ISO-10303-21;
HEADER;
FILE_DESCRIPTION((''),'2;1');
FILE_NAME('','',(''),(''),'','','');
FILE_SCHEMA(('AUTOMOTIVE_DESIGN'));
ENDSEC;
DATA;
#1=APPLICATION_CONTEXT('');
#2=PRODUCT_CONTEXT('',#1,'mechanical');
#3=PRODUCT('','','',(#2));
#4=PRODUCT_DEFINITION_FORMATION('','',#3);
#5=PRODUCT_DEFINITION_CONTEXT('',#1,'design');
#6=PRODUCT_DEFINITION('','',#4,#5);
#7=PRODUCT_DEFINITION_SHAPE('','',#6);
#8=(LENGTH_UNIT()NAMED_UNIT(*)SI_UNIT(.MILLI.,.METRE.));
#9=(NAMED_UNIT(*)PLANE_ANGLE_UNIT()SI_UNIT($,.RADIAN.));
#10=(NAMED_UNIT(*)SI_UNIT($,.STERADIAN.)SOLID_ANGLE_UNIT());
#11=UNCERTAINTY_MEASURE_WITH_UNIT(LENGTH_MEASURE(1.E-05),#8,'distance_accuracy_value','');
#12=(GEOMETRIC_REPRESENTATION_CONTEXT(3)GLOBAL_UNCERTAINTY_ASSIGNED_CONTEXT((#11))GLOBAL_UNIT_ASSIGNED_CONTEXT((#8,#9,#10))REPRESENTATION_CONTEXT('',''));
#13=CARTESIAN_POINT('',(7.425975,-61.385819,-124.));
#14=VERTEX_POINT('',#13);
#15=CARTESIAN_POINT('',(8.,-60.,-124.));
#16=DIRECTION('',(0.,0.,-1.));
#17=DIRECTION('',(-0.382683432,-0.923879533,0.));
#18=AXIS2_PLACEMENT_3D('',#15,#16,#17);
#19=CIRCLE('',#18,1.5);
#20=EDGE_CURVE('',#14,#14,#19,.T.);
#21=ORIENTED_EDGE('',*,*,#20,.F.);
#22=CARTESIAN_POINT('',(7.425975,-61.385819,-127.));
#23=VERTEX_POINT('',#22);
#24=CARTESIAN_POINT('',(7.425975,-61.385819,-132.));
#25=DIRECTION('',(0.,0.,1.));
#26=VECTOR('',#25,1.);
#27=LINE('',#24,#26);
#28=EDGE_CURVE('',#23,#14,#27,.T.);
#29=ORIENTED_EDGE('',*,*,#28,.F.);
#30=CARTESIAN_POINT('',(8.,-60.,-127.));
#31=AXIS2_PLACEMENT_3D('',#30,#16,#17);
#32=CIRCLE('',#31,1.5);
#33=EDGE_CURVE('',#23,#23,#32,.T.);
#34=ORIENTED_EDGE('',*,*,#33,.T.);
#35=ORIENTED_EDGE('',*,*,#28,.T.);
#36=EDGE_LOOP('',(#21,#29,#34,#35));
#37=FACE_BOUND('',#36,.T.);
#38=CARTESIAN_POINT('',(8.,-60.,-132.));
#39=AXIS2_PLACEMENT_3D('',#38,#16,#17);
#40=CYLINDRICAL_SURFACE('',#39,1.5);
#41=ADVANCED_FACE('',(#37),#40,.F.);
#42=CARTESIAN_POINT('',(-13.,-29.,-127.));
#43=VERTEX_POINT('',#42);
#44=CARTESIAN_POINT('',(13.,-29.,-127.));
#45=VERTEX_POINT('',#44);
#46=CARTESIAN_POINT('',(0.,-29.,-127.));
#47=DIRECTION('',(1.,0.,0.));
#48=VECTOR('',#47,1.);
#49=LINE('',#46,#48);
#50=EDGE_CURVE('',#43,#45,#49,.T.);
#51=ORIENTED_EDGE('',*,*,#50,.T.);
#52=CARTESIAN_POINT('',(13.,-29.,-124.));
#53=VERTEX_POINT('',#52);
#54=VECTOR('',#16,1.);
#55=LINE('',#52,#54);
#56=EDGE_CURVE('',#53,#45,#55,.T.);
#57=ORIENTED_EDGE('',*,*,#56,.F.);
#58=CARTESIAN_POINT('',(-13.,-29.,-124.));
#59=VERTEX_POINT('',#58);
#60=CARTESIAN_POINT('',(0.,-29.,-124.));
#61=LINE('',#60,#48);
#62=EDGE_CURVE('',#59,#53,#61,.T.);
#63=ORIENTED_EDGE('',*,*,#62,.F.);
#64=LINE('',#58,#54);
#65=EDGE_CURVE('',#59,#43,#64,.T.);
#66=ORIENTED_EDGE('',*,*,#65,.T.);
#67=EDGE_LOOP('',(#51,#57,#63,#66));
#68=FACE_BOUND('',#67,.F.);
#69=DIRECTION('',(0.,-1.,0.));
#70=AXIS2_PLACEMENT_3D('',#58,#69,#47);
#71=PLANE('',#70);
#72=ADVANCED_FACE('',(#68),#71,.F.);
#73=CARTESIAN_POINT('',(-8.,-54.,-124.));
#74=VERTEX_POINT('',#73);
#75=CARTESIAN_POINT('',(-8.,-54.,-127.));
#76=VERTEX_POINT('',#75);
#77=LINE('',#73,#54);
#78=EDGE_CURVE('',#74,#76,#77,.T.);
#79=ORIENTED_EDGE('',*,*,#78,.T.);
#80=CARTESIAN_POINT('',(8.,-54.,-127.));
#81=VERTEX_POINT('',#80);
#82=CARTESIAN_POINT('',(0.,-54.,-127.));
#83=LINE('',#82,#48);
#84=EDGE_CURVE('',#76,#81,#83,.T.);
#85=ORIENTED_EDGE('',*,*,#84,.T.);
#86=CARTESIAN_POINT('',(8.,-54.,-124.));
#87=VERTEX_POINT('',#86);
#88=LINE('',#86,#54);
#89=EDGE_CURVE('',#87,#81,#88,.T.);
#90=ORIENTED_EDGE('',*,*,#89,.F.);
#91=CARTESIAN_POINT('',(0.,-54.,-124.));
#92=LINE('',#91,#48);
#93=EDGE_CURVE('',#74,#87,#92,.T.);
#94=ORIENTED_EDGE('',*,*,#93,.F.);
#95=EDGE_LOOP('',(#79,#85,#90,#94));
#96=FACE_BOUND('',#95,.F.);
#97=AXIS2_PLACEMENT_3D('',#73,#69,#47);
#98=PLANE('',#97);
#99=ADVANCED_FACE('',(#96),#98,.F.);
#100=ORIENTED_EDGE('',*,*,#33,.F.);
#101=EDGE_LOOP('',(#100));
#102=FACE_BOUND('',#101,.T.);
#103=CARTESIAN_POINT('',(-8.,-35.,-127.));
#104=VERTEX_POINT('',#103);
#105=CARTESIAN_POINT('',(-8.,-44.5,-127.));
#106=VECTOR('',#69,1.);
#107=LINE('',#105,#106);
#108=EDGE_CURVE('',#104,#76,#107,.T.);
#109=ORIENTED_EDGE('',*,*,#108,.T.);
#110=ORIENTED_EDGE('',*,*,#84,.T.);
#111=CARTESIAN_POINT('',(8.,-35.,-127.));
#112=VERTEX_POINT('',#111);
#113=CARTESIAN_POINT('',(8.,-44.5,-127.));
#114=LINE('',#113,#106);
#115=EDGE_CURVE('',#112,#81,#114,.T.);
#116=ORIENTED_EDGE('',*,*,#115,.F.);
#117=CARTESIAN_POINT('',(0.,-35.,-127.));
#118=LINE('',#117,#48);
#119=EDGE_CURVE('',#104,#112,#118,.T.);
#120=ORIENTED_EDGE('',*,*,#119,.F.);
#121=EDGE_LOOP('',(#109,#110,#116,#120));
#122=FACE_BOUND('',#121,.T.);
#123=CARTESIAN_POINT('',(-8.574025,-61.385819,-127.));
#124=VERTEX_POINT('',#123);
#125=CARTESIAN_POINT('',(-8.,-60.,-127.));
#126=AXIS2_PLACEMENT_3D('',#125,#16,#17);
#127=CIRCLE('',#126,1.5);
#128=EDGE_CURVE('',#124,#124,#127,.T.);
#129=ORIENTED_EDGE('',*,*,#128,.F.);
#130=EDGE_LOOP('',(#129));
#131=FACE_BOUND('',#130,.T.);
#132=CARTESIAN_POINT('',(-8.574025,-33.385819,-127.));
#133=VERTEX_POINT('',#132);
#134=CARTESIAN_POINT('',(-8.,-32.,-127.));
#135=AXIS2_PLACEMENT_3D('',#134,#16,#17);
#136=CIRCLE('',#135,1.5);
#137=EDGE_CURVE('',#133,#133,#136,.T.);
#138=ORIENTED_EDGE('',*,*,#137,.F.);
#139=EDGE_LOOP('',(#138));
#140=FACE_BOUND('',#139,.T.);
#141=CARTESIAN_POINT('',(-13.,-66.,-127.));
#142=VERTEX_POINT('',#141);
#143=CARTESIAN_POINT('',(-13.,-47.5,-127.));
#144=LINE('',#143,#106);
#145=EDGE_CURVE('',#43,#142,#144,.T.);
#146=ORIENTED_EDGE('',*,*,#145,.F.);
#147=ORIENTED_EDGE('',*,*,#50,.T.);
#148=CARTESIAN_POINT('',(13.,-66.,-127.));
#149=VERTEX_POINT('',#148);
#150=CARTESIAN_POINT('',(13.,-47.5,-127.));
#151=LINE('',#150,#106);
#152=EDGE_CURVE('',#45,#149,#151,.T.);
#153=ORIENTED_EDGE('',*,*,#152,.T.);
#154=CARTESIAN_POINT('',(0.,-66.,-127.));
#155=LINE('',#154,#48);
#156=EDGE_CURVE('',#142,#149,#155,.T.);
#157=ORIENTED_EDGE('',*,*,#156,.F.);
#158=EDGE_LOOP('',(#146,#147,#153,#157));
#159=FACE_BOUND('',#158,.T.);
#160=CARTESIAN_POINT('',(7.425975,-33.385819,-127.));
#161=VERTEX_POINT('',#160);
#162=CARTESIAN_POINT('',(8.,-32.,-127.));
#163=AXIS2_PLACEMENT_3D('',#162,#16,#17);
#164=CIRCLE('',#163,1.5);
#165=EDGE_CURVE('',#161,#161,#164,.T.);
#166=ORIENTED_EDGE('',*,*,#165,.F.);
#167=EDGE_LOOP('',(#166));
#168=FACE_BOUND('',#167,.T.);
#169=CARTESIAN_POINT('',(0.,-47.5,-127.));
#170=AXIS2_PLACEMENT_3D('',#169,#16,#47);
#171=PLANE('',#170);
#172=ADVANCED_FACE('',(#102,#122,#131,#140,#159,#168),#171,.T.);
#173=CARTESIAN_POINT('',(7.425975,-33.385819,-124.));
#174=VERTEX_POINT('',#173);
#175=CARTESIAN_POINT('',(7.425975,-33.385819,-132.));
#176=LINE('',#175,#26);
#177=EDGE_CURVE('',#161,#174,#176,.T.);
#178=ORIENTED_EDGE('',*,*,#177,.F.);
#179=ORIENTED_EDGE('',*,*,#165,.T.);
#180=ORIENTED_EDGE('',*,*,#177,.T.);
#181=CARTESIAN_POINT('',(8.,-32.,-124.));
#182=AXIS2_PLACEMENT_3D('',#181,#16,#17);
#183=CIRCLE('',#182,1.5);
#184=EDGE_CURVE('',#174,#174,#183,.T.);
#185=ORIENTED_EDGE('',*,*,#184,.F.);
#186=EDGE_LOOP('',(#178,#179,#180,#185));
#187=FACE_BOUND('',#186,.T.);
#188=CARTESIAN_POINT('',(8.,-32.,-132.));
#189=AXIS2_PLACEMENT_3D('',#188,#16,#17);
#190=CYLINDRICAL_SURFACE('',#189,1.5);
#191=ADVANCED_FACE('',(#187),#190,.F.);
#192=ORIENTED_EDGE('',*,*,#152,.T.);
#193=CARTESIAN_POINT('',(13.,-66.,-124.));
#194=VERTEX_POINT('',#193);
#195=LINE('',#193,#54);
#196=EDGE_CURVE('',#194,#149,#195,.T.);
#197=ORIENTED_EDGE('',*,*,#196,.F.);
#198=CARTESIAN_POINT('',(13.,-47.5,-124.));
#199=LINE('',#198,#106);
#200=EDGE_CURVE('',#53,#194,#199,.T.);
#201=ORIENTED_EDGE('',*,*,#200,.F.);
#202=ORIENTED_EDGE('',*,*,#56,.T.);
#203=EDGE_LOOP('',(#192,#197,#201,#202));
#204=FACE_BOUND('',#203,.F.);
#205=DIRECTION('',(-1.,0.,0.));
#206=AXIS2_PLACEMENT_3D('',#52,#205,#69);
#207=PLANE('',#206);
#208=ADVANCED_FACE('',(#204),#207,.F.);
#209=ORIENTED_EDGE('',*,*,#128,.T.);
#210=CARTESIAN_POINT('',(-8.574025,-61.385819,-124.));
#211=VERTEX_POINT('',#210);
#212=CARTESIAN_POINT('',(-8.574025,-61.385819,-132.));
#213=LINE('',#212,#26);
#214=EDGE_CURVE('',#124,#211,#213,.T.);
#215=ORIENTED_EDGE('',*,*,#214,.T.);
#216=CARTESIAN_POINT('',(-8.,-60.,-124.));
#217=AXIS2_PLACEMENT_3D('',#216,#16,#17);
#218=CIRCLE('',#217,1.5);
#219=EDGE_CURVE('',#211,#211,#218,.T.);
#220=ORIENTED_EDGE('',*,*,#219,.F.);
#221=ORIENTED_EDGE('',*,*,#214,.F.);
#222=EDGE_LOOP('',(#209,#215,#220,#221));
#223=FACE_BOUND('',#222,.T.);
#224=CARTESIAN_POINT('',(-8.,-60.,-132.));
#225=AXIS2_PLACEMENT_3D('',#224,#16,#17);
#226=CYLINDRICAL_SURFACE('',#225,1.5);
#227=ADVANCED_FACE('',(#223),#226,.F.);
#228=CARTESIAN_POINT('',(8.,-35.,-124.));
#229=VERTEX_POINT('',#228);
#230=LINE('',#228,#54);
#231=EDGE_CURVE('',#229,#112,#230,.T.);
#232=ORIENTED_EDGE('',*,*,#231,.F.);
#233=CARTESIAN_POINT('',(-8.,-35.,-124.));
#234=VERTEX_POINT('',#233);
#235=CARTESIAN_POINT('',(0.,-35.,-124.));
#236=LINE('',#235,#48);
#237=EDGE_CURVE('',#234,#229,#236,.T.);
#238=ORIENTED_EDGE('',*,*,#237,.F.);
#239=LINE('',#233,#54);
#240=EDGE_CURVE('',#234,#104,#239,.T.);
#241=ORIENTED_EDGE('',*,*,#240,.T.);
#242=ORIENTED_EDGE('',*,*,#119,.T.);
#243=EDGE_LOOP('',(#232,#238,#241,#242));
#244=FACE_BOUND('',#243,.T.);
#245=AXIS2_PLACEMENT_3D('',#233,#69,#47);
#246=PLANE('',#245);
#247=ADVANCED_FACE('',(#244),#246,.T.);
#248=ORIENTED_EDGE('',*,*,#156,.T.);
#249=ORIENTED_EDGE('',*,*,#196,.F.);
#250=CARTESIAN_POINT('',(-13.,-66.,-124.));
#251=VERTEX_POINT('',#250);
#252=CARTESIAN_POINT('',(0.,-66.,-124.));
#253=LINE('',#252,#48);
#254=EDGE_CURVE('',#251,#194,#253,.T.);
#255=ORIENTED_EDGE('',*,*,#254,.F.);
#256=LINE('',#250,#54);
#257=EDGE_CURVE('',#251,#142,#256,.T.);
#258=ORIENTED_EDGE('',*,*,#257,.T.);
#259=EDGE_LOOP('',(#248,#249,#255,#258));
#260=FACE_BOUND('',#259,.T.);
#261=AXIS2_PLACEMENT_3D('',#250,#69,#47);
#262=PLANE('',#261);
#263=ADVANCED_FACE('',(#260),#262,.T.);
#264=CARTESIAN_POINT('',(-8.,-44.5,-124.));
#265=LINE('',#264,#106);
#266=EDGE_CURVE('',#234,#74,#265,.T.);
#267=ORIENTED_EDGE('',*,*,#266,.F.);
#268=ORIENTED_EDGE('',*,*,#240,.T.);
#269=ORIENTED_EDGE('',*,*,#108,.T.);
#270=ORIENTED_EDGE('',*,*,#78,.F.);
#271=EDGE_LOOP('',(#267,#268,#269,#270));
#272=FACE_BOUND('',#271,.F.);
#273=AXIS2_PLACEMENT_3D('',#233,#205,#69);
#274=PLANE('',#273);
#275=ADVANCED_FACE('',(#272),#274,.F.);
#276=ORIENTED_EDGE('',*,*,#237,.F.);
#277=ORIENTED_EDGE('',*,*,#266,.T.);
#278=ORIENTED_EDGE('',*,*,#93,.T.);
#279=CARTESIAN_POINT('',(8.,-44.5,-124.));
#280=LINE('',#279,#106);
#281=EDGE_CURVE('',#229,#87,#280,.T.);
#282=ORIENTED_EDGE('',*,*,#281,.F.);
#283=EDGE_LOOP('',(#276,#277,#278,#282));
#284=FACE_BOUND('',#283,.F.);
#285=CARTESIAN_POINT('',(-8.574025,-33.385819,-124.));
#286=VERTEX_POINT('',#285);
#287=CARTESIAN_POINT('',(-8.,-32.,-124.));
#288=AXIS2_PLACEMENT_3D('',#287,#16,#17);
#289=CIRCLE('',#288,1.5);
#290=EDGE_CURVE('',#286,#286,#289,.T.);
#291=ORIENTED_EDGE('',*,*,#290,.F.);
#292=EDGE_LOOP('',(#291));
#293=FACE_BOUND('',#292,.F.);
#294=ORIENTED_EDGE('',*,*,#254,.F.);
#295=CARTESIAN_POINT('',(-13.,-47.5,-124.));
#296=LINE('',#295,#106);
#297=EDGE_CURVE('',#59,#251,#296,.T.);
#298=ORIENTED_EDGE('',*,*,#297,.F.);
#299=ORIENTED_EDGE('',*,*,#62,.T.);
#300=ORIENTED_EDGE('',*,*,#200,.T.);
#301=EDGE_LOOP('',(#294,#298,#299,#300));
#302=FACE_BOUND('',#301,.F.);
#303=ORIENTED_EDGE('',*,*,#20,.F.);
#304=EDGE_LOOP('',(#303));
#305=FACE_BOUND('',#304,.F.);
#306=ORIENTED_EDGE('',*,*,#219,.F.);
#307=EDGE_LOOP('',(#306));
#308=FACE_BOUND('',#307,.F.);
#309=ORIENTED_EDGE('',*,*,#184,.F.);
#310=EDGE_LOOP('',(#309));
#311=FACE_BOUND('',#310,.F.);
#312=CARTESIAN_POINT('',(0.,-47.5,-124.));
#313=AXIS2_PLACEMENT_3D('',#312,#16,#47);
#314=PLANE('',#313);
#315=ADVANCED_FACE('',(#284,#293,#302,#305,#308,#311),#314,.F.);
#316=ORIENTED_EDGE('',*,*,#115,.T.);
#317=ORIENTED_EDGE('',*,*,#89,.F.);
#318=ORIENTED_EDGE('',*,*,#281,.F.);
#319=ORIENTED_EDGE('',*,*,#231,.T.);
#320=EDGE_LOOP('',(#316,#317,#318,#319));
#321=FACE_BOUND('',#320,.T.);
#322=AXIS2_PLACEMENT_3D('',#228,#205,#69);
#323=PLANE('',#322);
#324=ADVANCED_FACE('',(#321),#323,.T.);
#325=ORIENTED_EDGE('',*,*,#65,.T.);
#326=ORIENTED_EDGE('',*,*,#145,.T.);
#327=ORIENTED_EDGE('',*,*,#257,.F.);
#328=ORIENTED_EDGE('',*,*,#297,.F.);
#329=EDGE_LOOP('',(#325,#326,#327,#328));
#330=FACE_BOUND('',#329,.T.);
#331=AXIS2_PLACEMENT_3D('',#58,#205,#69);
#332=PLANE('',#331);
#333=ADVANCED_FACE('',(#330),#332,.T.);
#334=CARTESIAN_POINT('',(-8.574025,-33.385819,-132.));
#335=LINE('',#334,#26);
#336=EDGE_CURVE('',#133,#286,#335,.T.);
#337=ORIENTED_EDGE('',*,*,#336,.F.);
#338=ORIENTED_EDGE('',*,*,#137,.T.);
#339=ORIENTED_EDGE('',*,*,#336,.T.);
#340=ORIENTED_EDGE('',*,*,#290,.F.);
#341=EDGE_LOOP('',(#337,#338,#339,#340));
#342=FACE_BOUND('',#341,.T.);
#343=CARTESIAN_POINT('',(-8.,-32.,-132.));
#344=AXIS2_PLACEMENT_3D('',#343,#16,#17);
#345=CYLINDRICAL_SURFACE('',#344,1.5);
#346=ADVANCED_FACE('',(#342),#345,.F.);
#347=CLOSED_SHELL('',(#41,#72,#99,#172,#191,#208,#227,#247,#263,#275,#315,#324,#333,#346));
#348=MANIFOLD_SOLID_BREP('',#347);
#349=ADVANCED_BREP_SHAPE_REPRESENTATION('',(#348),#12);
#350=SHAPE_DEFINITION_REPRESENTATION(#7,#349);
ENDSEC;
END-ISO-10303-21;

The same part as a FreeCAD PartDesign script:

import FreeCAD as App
import Part
import Sketcher

doc = App.newDocument("Part")
body = doc.addObject("PartDesign::Body", "Body")

sketch1 = body.newObject("Sketcher::SketchObject", "Sketch")
sketch1.AttachmentSupport = (doc.getObject("XY_Plane"), [""])
sketch1.MapMode = "FlatFace"
sketch1.addGeometry(Part.Circle(App.Vector(0, 0, 0), App.Vector(0, 0, 1), 1.5), False)
sketch1.addConstraint(Sketcher.Constraint("Coincident", 0, 3, -1, 1))
sketch1.addConstraint(Sketcher.Constraint("Diameter", 0, 3.0))
pad1 = body.newObject("PartDesign::Pad", "Pad")
pad1.Profile = sketch1
pad1.Length = 20
body2 = doc.addObject("PartDesign::Body", "Body001")
doc.recompute()

body.Placement = App.Placement(App.Vector(-8, 34, 51), App.Rotation(App.Vector(0, 0, 1), 247.5))
boolean = body2.newObject("PartDesign::Boolean", "Boolean")
boolean.Type = "Fuse"
boolean.addObjects([body])
body3 = doc.addObject("PartDesign::Body", "Body002")

sketch2 = body3.newObject("Sketcher::SketchObject", "Sketch001")
sketch2.AttachmentSupport = (doc.getObject("XY_Plane002"), [""])
sketch2.MapMode = "FlatFace"
sketch2.addGeometry(Part.Circle(App.Vector(0, 0, 0), App.Vector(0, 0, 1), 1.5), False)
sketch2.addConstraint(Sketcher.Constraint("Coincident", 0, 3, -1, 1))
sketch2.addConstraint(Sketcher.Constraint("Diameter", 0, 3.0))
pad2 = body3.newObject("PartDesign::Pad", "Pad001")
pad2.Profile = sketch2
pad2.Length = 20
body4 = doc.addObject("PartDesign::Body", "Body003")
doc.recompute()

body3.Placement = App.Placement(App.Vector(8, 62, 51), App.Rotation(App.Vector(0, 0, -1), 112.5))
boolean2 = body4.newObject("PartDesign::Boolean", "Boolean001")
boolean2.Type = "Fuse"
boolean2.addObjects([body3])
body5 = doc.addObject("PartDesign::Body", "Body004")

sketch3 = body5.newObject("Sketcher::SketchObject", "Sketch002")
sketch3.AttachmentSupport = (doc.getObject("XY_Plane004"), [""])
sketch3.MapMode = "FlatFace"
sketch3.addGeometry(Part.Circle(App.Vector(0, 0, 0), App.Vector(0, 0, 1), 1.5), False)
sketch3.addConstraint(Sketcher.Constraint("Coincident", 0, 3, -1, 1))
sketch3.addConstraint(Sketcher.Constraint("Diameter", 0, 3.0))
pad3 = body5.newObject("PartDesign::Pad", "Pad002")
pad3.Profile = sketch3
pad3.Length = 20
body6 = doc.addObject("PartDesign::Body", "Body005")
doc.recompute()

body5.Placement = App.Placement(App.Vector(-8, 62, 51), App.Rotation(App.Vector(0, 0, -1), 112.5))
boolean3 = body6.newObject("PartDesign::Boolean", "Boolean002")
boolean3.Type = "Fuse"
boolean3.addObjects([body5])
body7 = doc.addObject("PartDesign::Body", "Body006")

sketch4 = body7.newObject("Sketcher::SketchObject", "Sketch003")
sketch4.AttachmentSupport = (doc.getObject("XY_Plane006"), [""])
sketch4.MapMode = "FlatFace"
sketch4.addGeometry(Part.Circle(App.Vector(0, 0, 0), App.Vector(0, 0, 1), 1.5), False)
sketch4.addConstraint(Sketcher.Constraint("Coincident", 0, 3, -1, 1))
sketch4.addConstraint(Sketcher.Constraint("Diameter", 0, 3.0))
pad4 = body7.newObject("PartDesign::Pad", "Pad003")
pad4.Profile = sketch4
pad4.Length = 20
body8 = doc.addObject("PartDesign::Body", "Body007")
body8.AllowCompound = True
doc.recompute()

body7.Placement = App.Placement(App.Vector(8, 34, 51), App.Rotation(App.Vector(0, 0, 1), 247.5))
boolean4 = body8.newObject("PartDesign::Boolean", "Boolean003")
boolean4.Type = "Fuse"
boolean4.addObjects([body7])
doc.recompute()

boolean5 = body8.newObject("PartDesign::Boolean", "Boolean004")
boolean5.Type = "Fuse"
boolean5.addObjects([body2])
doc.recompute()

boolean6 = body8.newObject("PartDesign::Boolean", "Boolean005")
boolean6.Type = "Fuse"
boolean6.addObjects([body4])
doc.recompute()

boolean7 = body8.newObject("PartDesign::Boolean", "Boolean006")
boolean7.Type = "Fuse"
boolean7.addObjects([body6])
body9 = doc.addObject("PartDesign::Body", "Body008")
body9.AllowCompound = True
doc.recompute()

body8.Placement = App.Placement(App.Vector(0, -94, -180), App.Rotation(App.Vector(0, 0, 1), 0))
boolean8 = body9.newObject("PartDesign::Boolean", "Boolean007")
boolean8.Type = "Fuse"
boolean8.addObjects([body8])
body10 = doc.addObject("PartDesign::Body", "Body009")

sketch5 = body10.newObject("Sketcher::SketchObject", "Sketch004")
sketch5.AttachmentSupport = (doc.getObject("XY_Plane009"), [""])
sketch5.MapMode = "FlatFace"
sketch5.AttachmentOffset = App.Placement(App.Vector(0, 0, 27), App.Rotation())
sketch5.addGeometry(Part.LineSegment(App.Vector(-8, 56, 0), App.Vector(-8, 37, 0)), False)
sketch5.addGeometry(Part.LineSegment(App.Vector(-8, 37, 0), App.Vector(8, 37, 0)), False)
sketch5.addGeometry(Part.LineSegment(App.Vector(8, 37, 0), App.Vector(8, 56, 0)), False)
sketch5.addGeometry(Part.LineSegment(App.Vector(8, 56, 0), App.Vector(-8, 56, 0)), False)
sketch5.addConstraint(Sketcher.Constraint("Coincident", 0, 2, 1, 1))
sketch5.addConstraint(Sketcher.Constraint("Coincident", 1, 2, 2, 1))
sketch5.addConstraint(Sketcher.Constraint("Coincident", 2, 2, 3, 1))
sketch5.addConstraint(Sketcher.Constraint("Coincident", 3, 2, 0, 1))
sketch5.addConstraint(Sketcher.Constraint("Vertical", 0))
sketch5.addConstraint(Sketcher.Constraint("Horizontal", 1))
sketch5.addConstraint(Sketcher.Constraint("Vertical", 2))
sketch5.addConstraint(Sketcher.Constraint("Horizontal", 3))
sketch5.addConstraint(Sketcher.Constraint("DistanceX", 1, 1, 1, 2, 16.0))
sketch5.addConstraint(Sketcher.Constraint("DistanceY", 0, 2, 0, 1, 19.0))
sketch5.addConstraint(Sketcher.Constraint("DistanceX", 0, 2, -1, 1, 8.0))
sketch5.addConstraint(Sketcher.Constraint("DistanceY", -1, 1, 0, 2, 37.0))
pad5 = body10.newObject("PartDesign::Pad", "Pad004")
pad5.Profile = sketch5
pad5.Length = 3
body11 = doc.addObject("PartDesign::Body", "Body010")

sketch6 = body11.newObject("Sketcher::SketchObject", "Sketch005")
sketch6.AttachmentSupport = (doc.getObject("XY_Plane010"), [""])
sketch6.MapMode = "FlatFace"
sketch6.AttachmentOffset = App.Placement(App.Vector(0, 0, 27), App.Rotation())
sketch6.addGeometry(Part.LineSegment(App.Vector(-13, 68, 0), App.Vector(-13, 31, 0)), False)
sketch6.addGeometry(Part.LineSegment(App.Vector(-13, 31, 0), App.Vector(13, 31, 0)), False)
sketch6.addGeometry(Part.LineSegment(App.Vector(13, 31, 0), App.Vector(13, 68, 0)), False)
sketch6.addGeometry(Part.LineSegment(App.Vector(13, 68, 0), App.Vector(-13, 68, 0)), False)
sketch6.addConstraint(Sketcher.Constraint("Coincident", 0, 2, 1, 1))
sketch6.addConstraint(Sketcher.Constraint("Coincident", 1, 2, 2, 1))
sketch6.addConstraint(Sketcher.Constraint("Coincident", 2, 2, 3, 1))
sketch6.addConstraint(Sketcher.Constraint("Coincident", 3, 2, 0, 1))
sketch6.addConstraint(Sketcher.Constraint("Vertical", 0))
sketch6.addConstraint(Sketcher.Constraint("Horizontal", 1))
sketch6.addConstraint(Sketcher.Constraint("Vertical", 2))
sketch6.addConstraint(Sketcher.Constraint("Horizontal", 3))
sketch6.addConstraint(Sketcher.Constraint("DistanceX", 1, 1, 1, 2, 26.0))
sketch6.addConstraint(Sketcher.Constraint("DistanceY", 0, 2, 0, 1, 37.0))
sketch6.addConstraint(Sketcher.Constraint("DistanceX", 0, 2, -1, 1, 13.0))
sketch6.addConstraint(Sketcher.Constraint("DistanceY", -1, 1, 0, 2, 31.0))
pad6 = body11.newObject("PartDesign::Pad", "Pad005")
pad6.Profile = sketch6
pad6.Length = 3
doc.recompute()

boolean9 = body11.newObject("PartDesign::Boolean", "Boolean008")
boolean9.Type = "Cut"
boolean9.addObjects([body10])
body12 = doc.addObject("PartDesign::Body", "Body011")
doc.recompute()

body11.Placement = App.Placement(App.Vector(0, 2, -94), App.Rotation(App.Vector(1, 0, 0), 180))
boolean10 = body12.newObject("PartDesign::Boolean", "Boolean009")
boolean10.Type = "Fuse"
boolean10.addObjects([body11])
doc.recompute()

boolean11 = body12.newObject("PartDesign::Boolean", "Boolean010")
boolean11.Type = "Cut"
boolean11.addObjects([body9])
body13 = doc.addObject("PartDesign::Body", "Body012")
doc.recompute()

body12.Placement = App.Placement(App.Vector(0, 0, -3), App.Rotation(App.Vector(0, 0, 1), 0))
boolean12 = body13.newObject("PartDesign::Boolean", "Boolean011")
boolean12.Type = "Fuse"
boolean12.addObjects([body12])

doc.recompute()
